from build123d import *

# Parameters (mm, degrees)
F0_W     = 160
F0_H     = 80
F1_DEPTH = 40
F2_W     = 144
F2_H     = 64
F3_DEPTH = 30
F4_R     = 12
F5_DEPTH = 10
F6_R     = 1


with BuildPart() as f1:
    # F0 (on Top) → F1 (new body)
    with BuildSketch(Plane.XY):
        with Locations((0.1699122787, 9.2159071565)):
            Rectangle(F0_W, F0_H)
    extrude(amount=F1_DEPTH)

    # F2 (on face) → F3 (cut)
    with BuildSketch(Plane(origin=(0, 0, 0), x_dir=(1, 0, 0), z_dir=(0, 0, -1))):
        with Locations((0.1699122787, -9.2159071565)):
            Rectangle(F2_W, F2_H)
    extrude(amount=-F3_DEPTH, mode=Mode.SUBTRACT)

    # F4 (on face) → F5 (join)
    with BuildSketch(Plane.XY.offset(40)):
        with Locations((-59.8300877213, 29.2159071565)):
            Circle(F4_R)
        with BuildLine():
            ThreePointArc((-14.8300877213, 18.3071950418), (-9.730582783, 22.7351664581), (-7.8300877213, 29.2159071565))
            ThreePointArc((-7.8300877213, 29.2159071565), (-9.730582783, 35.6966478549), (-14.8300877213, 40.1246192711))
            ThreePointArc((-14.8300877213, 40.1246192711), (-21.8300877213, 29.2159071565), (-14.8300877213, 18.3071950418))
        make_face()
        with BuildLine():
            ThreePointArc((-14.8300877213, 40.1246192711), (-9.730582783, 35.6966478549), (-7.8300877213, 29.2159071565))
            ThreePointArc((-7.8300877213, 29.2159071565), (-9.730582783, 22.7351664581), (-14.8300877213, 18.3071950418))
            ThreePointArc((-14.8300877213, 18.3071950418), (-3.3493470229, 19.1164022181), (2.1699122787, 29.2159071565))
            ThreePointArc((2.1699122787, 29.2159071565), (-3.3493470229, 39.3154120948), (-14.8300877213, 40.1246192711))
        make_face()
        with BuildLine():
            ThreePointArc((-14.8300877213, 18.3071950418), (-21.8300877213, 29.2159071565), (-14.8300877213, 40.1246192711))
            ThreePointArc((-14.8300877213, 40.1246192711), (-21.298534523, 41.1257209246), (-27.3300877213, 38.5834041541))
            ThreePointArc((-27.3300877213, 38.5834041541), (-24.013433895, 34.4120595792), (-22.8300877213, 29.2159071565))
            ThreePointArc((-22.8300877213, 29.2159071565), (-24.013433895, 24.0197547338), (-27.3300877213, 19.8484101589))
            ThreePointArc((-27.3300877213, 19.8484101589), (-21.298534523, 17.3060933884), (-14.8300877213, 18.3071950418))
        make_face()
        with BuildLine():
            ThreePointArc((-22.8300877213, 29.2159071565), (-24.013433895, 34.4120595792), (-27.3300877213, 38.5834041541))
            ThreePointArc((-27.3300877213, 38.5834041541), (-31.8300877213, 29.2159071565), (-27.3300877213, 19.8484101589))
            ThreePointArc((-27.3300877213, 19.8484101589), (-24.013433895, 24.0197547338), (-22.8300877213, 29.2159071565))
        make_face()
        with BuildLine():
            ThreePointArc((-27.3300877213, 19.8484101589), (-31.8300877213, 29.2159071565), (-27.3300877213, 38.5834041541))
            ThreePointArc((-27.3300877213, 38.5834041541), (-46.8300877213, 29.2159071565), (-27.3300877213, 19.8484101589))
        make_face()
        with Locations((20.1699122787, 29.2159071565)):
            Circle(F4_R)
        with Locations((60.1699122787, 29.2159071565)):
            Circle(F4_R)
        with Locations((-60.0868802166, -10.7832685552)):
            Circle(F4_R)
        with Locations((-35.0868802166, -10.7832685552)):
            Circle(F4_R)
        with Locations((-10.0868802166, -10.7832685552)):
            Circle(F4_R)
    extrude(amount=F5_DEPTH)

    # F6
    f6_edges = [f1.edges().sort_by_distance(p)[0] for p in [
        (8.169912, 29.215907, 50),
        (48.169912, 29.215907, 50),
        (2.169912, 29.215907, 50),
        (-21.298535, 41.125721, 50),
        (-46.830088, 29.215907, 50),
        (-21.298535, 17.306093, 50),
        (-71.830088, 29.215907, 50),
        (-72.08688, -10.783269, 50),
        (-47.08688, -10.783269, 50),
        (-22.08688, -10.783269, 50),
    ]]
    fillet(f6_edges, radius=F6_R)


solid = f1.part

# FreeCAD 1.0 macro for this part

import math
import FreeCAD as App
import Part
import Sketcher
from FreeCAD import Vector


def edges_at(feature, points):
    """Names of the edges that pass closest to the given points."""
    edges = feature.Shape.Edges
    near = lambda p: min(range(len(edges)), key=lambda i: edges[i].distToShape(Part.Vertex(*p))[0])
    return sorted({f"Edge{near(p) + 1}" for p in points})

doc = App.newDocument("Part")
body = doc.addObject("PartDesign::Body", "Body")

sketch1 = body.newObject("Sketcher::SketchObject", "Sketch")
sketch1.AttachmentSupport = (doc.getObject("XY_Plane"), [""])
sketch1.MapMode = "FlatFace"
sketch1.addGeometry([
    Part.LineSegment(Vector(-80, 49, 0), Vector(-80, -31, 0)),
    Part.LineSegment(Vector(-80, -31, 0), Vector(80, -31, 0)),
    Part.LineSegment(Vector(80, -31, 0), Vector(80, 49, 0)),
    Part.LineSegment(Vector(80, 49, 0), Vector(-80, 49, 0)),
], False)
sketch1.addConstraint([
    Sketcher.Constraint("Coincident", 0, 2, 1, 1),
    Sketcher.Constraint("Coincident", 1, 2, 2, 1),
    Sketcher.Constraint("Coincident", 2, 2, 3, 1),
    Sketcher.Constraint("Coincident", 3, 2, 0, 1),
    Sketcher.Constraint("Vertical", 0),
    Sketcher.Constraint("Horizontal", 1),
    Sketcher.Constraint("Vertical", 2),
    Sketcher.Constraint("Horizontal", 3),
    Sketcher.Constraint("DistanceX", 1, 1, 1, 2, 160.0),
    Sketcher.Constraint("DistanceY", 0, 2, 0, 1, 80.0),
    Sketcher.Constraint("DistanceX", 0, 2, -1, 1, 79.830088),
    Sketcher.Constraint("DistanceY", 0, 2, -1, 1, 30.784093),
])
pad1 = body.newObject("PartDesign::Pad", "Pad")
pad1.Profile = sketch1
pad1.Length = 40

sketch2 = body.newObject("Sketcher::SketchObject", "Sketch001")
sketch2.AttachmentSupport = (doc.getObject("XY_Plane"), [""])
sketch2.MapMode = "FlatFace"
sketch2.addGeometry([
    Part.LineSegment(Vector(-72, -23, 0), Vector(-72, 41, 0)),
    Part.LineSegment(Vector(-72, 41, 0), Vector(72, 41, 0)),
    Part.LineSegment(Vector(72, 41, 0), Vector(72, -23, 0)),
    Part.LineSegment(Vector(72, -23, 0), Vector(-72, -23, 0)),
], False)
sketch2.addConstraint([
    Sketcher.Constraint("Coincident", 0, 2, 1, 1),
    Sketcher.Constraint("Coincident", 1, 2, 2, 1),
    Sketcher.Constraint("Coincident", 2, 2, 3, 1),
    Sketcher.Constraint("Coincident", 3, 2, 0, 1),
    Sketcher.Constraint("Vertical", 0),
    Sketcher.Constraint("Horizontal", 1),
    Sketcher.Constraint("Vertical", 2),
    Sketcher.Constraint("Horizontal", 3),
    Sketcher.Constraint("DistanceX", 1, 1, 1, 2, 144.0),
    Sketcher.Constraint("DistanceY", 0, 1, 0, 2, 64.0),
    Sketcher.Constraint("DistanceX", 0, 2, -1, 1, 71.830088),
    Sketcher.Constraint("DistanceY", -1, 1, 0, 2, 41.215907),
])
pocket1 = body.newObject("PartDesign::Pocket", "Pocket")
pocket1.Profile = sketch2
pocket1.Length = 30
pocket1.Reversed = True

sketch3 = body.newObject("Sketcher::SketchObject", "Sketch002")
sketch3.AttachmentSupport = (doc.getObject("XY_Plane"), [""])
sketch3.MapMode = "FlatFace"
sketch3.AttachmentOffset = App.Placement(Vector(0, 0, 40), App.Rotation())
sketch3.addGeometry([
    Part.Circle(Vector(-60, 29, 0), Vector(0, 0, 1), 12),
    Part.ArcOfCircle(Part.Circle(Vector(-10, 29, 0), Vector(0, 0, 1), 12), math.radians(-115), math.radians(0)),
    Part.ArcOfCircle(Part.Circle(Vector(-10, 29, 0), Vector(0, 0, 1), 12), math.radians(0), math.radians(115)),
    Part.ArcOfCircle(Part.Circle(Vector(-20, 29, 0), Vector(0, 0, 1), 12), math.radians(65), math.radians(129)),
    Part.ArcOfCircle(Part.Circle(Vector(-35, 29, 0), Vector(0, 0, 1), 12), math.radians(51), math.radians(309)),
    Part.ArcOfCircle(Part.Circle(Vector(-20, 29, 0), Vector(0, 0, 1), 12), math.radians(-129), math.radians(-65)),
    Part.Circle(Vector(20, 29, 0), Vector(0, 0, 1), 12),
    Part.Circle(Vector(60, 29, 0), Vector(0, 0, 1), 12),
    Part.Circle(Vector(-60, -11, 0), Vector(0, 0, 1), 12),
    Part.Circle(Vector(-35, -11, 0), Vector(0, 0, 1), 12),
    Part.Circle(Vector(-10, -11, 0), Vector(0, 0, 1), 12),
], False)
sketch3.addConstraint([
    Sketcher.Constraint("Tangent", 1, 2, 2, 1),
    Sketcher.Constraint("Coincident", 2, 2, 3, 1),
    Sketcher.Constraint("Coincident", 3, 2, 4, 1),
    Sketcher.Constraint("Coincident", 4, 2, 5, 1),
    Sketcher.Constraint("Coincident", 5, 2, 1, 1),
    Sketcher.Constraint("Coincident", 5, 3, 3, 3),
    Sketcher.Constraint("Equal", 0, 1),
    Sketcher.Constraint("Equal", 1, 2),
    Sketcher.Constraint("Equal", 2, 3),
    Sketcher.Constraint("Equal", 3, 4),
    Sketcher.Constraint("Equal", 4, 5),
    Sketcher.Constraint("Equal", 5, 6),
    Sketcher.Constraint("Equal", 6, 7),
    Sketcher.Constraint("Equal", 7, 8),
    Sketcher.Constraint("Equal", 8, 9),
    Sketcher.Constraint("Equal", 9, 10),
    Sketcher.Constraint("Horizontal", 0, 3, 1, 3),
    Sketcher.Constraint("Horizontal", 2, 3, 3, 3),
    Sketcher.Constraint("Horizontal", 3, 3, 4, 3),
    Sketcher.Constraint("Horizontal", 5, 3, 6, 3),
    Sketcher.Constraint("Horizontal", 6, 3, 7, 3),
    Sketcher.Constraint("Horizontal", 8, 3, 9, 3),
    Sketcher.Constraint("Horizontal", 9, 3, 10, 3),
    Sketcher.Constraint("Horizontal", 7, 3, 1, 2),
    Sketcher.Constraint("Diameter", 0, 24.0),
    Sketcher.Constraint("DistanceX", 0, 3, 1, 3, 50.0),
    Sketcher.Constraint("DistanceX", 3, 3, 1, 3, 10.0),
    Sketcher.Constraint("DistanceX", 4, 3, 3, 3, 15.0),
    Sketcher.Constraint("DistanceX", 1, 3, 6, 3, 30.0),
    Sketcher.Constraint("DistanceX", 6, 3, 7, 3, 40.0),
    Sketcher.Constraint("DistanceX", 8, 3, 9, 3, 25.0),
    Sketcher.Constraint("DistanceX", 9, 3, 10, 3, 25.0),
    Sketcher.Constraint("DistanceX", 8, 3, -1, 1, 60.08688),
    Sketcher.Constraint("DistanceY", 8, 3, -1, 1, 10.783269),
    Sketcher.Constraint("DistanceY", -1, 1, 2, 2, 40.124619),
    Sketcher.Constraint("DistanceX", 0, 3, -1, 1, 59.830088),
])
pad2 = body.newObject("PartDesign::Pad", "Pad001")
pad2.Profile = sketch3
pad2.Length = 10
doc.recompute()

fillet = body.newObject("PartDesign::Fillet", "Fillet")
fillet.Base = (pad2, edges_at(pad2, [
    (8.17, 29.216, 50),
    (48.17, 29.216, 50),
    (-3.349, 19.116, 50),
    (-21.299, 41.126, 50),
    (-46.83, 29.216, 50),
    (-21.299, 17.306, 50),
    (-71.83, 29.216, 50),
    (-72.087, -10.783, 50),
    (-47.087, -10.783, 50),
    (-22.087, -10.783, 50),
]))
fillet.Radius = 1

doc.recompute()
